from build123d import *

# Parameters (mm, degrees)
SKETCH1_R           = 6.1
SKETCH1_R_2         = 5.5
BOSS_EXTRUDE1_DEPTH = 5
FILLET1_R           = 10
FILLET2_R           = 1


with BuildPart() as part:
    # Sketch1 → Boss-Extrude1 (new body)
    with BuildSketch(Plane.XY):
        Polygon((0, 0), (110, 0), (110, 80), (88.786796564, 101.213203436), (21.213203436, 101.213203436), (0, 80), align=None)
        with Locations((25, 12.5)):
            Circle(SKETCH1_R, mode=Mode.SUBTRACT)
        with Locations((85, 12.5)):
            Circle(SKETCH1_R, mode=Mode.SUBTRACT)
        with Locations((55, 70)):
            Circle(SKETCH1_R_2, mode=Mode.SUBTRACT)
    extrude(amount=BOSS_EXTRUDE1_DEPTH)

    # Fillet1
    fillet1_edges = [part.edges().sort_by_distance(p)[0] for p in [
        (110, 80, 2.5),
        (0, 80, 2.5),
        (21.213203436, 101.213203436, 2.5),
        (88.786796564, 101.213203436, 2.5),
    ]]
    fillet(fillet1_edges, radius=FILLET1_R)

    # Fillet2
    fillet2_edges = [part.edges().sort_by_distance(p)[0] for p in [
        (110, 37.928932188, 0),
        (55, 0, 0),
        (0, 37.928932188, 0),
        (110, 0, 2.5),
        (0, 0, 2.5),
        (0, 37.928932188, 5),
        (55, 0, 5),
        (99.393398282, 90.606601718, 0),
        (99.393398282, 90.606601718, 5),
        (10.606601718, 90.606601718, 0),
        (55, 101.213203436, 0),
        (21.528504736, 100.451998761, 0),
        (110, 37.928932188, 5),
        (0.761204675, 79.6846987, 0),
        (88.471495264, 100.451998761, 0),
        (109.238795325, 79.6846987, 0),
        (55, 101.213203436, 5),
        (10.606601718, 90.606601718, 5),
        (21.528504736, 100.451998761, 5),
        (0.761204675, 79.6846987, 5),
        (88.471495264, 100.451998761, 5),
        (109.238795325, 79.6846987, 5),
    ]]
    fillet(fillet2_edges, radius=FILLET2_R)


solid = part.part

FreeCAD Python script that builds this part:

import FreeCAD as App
import Part
import Sketcher


def edges_at(feature, points):
    """Names of the edges that pass closest to the given points."""
    edges = feature.Shape.Edges
    near = lambda p: min(range(len(edges)), key=lambda i: edges[i].distToShape(Part.Vertex(*p))[0])
    return sorted({f"Edge{near(p) + 1}" for p in points})


def add_polygon(sketch, points):
    """Adds a closed chain of lines whose ends are joined by coincident constraints."""
    first, n = sketch.GeometryCount, len(points)
    for a, b in zip(points, points[1:] + points[:1]):
        sketch.addGeometry(Part.LineSegment(App.Vector(*a, 0), App.Vector(*b, 0)), False)
    for i in range(n):
        sketch.addConstraint(Sketcher.Constraint("Coincident", first + i, 2, first + (i + 1) % n, 1))

doc = App.newDocument("Part")
body = doc.addObject("PartDesign::Body", "Body")

sketch1 = body.newObject("Sketcher::SketchObject", "Sketch")
sketch1.AttachmentSupport = (doc.getObject("XY_Plane"), [""])
sketch1.MapMode = "FlatFace"
add_polygon(sketch1, [(0, 0), (110, 0), (110, 80), (89, 101), (21, 101), (0, 80)])
sketch1.addGeometry(Part.Circle(App.Vector(25, 12, 0), App.Vector(0, 0, 1), 6), False)
sketch1.addGeometry(Part.Circle(App.Vector(85, 12, 0), App.Vector(0, 0, 1), 6), False)
sketch1.addGeometry(Part.Circle(App.Vector(55, 70, 0), App.Vector(0, 0, 1), 6), False)
sketch1.addConstraint(Sketcher.Constraint("Horizontal", 0))
sketch1.addConstraint(Sketcher.Constraint("Vertical", 1))
sketch1.addConstraint(Sketcher.Constraint("Horizontal", 3))
sketch1.addConstraint(Sketcher.Constraint("Vertical", 5))
sketch1.addConstraint(Sketcher.Constraint("Coincident", 5, 2, -1, 1))
sketch1.addConstraint(Sketcher.Constraint("Equal", 6, 7))
sketch1.addConstraint(Sketcher.Constraint("Perpendicular", 2, 4))
sketch1.addConstraint(Sketcher.Constraint("Horizontal", 6, 3, 7, 3))
sketch1.addConstraint(Sketcher.Constraint("Horizontal", 1, 2, 4, 2))
sketch1.addConstraint(Sketcher.Constraint("Equal", 2, 4))
sketch1.addConstraint(Sketcher.Constraint("Diameter", 8, 11.0))
sketch1.addConstraint(Sketcher.Constraint("Diameter", 6, 12.2))
sketch1.addConstraint(Sketcher.Constraint("DistanceX", 0, 1, 0, 2, 110.0))
sketch1.addConstraint(Sketcher.Constraint("DistanceY", 1, 1, 1, 2, 80.0))
sketch1.addConstraint(Sketcher.Constraint("Distance", 2, 30.0))
sketch1.addConstraint(Sketcher.Constraint("DistanceX", -1, 1, 6, 3, 25.0))
sketch1.addConstraint(Sketcher.Constraint("DistanceX", -1, 1, 7, 3, 85.0))
sketch1.addConstraint(Sketcher.Constraint("DistanceX", -1, 1, 8, 3, 55.0))
sketch1.addConstraint(Sketcher.Constraint("DistanceY", -1, 1, 8, 3, 70.0))
sketch1.addConstraint(Sketcher.Constraint("DistanceY", -1, 1, 6, 3, 12.5))
pad1 = body.newObject("PartDesign::Pad", "Pad")
pad1.Profile = sketch1
pad1.Length = 5
doc.recompute()

fillet = body.newObject("PartDesign::Fillet", "Fillet")
fillet.Base = (pad1, edges_at(pad1, [
    (110, 80, 2.5),
    (0, 80, 2.5),
    (21.213, 101.213, 2.5),
    (88.787, 101.213, 2.5),
]))
fillet.Radius = 10
doc.recompute()

fillet2 = body.newObject("PartDesign::Fillet", "Fillet001")
fillet2.Base = (fillet, edges_at(fillet, [
    (110, 37.929, 0),
    (55, 0, 0),
    (0, 37.929, 0),
    (110, 0, 2.5),
    (0, 0, 2.5),
    (0, 37.929, 5),
    (55, 0, 5),
    (99.393, 90.607, 0),
    (99.393, 90.607, 5),
    (10.607, 90.607, 0),
    (55, 101.213, 0),
    (21.529, 100.452, 0),
    (110, 37.929, 5),
    (0.761, 79.685, 0),
    (88.471, 100.452, 0),
    (109.239, 79.685, 0),
    (55, 101.213, 5),
    (10.607, 90.607, 5),
    (21.529, 100.452, 5),
    (0.761, 79.685, 5),
    (88.471, 100.452, 5),
    (109.239, 79.685, 5),
]))
fillet2.Radius = 1

doc.recompute()
